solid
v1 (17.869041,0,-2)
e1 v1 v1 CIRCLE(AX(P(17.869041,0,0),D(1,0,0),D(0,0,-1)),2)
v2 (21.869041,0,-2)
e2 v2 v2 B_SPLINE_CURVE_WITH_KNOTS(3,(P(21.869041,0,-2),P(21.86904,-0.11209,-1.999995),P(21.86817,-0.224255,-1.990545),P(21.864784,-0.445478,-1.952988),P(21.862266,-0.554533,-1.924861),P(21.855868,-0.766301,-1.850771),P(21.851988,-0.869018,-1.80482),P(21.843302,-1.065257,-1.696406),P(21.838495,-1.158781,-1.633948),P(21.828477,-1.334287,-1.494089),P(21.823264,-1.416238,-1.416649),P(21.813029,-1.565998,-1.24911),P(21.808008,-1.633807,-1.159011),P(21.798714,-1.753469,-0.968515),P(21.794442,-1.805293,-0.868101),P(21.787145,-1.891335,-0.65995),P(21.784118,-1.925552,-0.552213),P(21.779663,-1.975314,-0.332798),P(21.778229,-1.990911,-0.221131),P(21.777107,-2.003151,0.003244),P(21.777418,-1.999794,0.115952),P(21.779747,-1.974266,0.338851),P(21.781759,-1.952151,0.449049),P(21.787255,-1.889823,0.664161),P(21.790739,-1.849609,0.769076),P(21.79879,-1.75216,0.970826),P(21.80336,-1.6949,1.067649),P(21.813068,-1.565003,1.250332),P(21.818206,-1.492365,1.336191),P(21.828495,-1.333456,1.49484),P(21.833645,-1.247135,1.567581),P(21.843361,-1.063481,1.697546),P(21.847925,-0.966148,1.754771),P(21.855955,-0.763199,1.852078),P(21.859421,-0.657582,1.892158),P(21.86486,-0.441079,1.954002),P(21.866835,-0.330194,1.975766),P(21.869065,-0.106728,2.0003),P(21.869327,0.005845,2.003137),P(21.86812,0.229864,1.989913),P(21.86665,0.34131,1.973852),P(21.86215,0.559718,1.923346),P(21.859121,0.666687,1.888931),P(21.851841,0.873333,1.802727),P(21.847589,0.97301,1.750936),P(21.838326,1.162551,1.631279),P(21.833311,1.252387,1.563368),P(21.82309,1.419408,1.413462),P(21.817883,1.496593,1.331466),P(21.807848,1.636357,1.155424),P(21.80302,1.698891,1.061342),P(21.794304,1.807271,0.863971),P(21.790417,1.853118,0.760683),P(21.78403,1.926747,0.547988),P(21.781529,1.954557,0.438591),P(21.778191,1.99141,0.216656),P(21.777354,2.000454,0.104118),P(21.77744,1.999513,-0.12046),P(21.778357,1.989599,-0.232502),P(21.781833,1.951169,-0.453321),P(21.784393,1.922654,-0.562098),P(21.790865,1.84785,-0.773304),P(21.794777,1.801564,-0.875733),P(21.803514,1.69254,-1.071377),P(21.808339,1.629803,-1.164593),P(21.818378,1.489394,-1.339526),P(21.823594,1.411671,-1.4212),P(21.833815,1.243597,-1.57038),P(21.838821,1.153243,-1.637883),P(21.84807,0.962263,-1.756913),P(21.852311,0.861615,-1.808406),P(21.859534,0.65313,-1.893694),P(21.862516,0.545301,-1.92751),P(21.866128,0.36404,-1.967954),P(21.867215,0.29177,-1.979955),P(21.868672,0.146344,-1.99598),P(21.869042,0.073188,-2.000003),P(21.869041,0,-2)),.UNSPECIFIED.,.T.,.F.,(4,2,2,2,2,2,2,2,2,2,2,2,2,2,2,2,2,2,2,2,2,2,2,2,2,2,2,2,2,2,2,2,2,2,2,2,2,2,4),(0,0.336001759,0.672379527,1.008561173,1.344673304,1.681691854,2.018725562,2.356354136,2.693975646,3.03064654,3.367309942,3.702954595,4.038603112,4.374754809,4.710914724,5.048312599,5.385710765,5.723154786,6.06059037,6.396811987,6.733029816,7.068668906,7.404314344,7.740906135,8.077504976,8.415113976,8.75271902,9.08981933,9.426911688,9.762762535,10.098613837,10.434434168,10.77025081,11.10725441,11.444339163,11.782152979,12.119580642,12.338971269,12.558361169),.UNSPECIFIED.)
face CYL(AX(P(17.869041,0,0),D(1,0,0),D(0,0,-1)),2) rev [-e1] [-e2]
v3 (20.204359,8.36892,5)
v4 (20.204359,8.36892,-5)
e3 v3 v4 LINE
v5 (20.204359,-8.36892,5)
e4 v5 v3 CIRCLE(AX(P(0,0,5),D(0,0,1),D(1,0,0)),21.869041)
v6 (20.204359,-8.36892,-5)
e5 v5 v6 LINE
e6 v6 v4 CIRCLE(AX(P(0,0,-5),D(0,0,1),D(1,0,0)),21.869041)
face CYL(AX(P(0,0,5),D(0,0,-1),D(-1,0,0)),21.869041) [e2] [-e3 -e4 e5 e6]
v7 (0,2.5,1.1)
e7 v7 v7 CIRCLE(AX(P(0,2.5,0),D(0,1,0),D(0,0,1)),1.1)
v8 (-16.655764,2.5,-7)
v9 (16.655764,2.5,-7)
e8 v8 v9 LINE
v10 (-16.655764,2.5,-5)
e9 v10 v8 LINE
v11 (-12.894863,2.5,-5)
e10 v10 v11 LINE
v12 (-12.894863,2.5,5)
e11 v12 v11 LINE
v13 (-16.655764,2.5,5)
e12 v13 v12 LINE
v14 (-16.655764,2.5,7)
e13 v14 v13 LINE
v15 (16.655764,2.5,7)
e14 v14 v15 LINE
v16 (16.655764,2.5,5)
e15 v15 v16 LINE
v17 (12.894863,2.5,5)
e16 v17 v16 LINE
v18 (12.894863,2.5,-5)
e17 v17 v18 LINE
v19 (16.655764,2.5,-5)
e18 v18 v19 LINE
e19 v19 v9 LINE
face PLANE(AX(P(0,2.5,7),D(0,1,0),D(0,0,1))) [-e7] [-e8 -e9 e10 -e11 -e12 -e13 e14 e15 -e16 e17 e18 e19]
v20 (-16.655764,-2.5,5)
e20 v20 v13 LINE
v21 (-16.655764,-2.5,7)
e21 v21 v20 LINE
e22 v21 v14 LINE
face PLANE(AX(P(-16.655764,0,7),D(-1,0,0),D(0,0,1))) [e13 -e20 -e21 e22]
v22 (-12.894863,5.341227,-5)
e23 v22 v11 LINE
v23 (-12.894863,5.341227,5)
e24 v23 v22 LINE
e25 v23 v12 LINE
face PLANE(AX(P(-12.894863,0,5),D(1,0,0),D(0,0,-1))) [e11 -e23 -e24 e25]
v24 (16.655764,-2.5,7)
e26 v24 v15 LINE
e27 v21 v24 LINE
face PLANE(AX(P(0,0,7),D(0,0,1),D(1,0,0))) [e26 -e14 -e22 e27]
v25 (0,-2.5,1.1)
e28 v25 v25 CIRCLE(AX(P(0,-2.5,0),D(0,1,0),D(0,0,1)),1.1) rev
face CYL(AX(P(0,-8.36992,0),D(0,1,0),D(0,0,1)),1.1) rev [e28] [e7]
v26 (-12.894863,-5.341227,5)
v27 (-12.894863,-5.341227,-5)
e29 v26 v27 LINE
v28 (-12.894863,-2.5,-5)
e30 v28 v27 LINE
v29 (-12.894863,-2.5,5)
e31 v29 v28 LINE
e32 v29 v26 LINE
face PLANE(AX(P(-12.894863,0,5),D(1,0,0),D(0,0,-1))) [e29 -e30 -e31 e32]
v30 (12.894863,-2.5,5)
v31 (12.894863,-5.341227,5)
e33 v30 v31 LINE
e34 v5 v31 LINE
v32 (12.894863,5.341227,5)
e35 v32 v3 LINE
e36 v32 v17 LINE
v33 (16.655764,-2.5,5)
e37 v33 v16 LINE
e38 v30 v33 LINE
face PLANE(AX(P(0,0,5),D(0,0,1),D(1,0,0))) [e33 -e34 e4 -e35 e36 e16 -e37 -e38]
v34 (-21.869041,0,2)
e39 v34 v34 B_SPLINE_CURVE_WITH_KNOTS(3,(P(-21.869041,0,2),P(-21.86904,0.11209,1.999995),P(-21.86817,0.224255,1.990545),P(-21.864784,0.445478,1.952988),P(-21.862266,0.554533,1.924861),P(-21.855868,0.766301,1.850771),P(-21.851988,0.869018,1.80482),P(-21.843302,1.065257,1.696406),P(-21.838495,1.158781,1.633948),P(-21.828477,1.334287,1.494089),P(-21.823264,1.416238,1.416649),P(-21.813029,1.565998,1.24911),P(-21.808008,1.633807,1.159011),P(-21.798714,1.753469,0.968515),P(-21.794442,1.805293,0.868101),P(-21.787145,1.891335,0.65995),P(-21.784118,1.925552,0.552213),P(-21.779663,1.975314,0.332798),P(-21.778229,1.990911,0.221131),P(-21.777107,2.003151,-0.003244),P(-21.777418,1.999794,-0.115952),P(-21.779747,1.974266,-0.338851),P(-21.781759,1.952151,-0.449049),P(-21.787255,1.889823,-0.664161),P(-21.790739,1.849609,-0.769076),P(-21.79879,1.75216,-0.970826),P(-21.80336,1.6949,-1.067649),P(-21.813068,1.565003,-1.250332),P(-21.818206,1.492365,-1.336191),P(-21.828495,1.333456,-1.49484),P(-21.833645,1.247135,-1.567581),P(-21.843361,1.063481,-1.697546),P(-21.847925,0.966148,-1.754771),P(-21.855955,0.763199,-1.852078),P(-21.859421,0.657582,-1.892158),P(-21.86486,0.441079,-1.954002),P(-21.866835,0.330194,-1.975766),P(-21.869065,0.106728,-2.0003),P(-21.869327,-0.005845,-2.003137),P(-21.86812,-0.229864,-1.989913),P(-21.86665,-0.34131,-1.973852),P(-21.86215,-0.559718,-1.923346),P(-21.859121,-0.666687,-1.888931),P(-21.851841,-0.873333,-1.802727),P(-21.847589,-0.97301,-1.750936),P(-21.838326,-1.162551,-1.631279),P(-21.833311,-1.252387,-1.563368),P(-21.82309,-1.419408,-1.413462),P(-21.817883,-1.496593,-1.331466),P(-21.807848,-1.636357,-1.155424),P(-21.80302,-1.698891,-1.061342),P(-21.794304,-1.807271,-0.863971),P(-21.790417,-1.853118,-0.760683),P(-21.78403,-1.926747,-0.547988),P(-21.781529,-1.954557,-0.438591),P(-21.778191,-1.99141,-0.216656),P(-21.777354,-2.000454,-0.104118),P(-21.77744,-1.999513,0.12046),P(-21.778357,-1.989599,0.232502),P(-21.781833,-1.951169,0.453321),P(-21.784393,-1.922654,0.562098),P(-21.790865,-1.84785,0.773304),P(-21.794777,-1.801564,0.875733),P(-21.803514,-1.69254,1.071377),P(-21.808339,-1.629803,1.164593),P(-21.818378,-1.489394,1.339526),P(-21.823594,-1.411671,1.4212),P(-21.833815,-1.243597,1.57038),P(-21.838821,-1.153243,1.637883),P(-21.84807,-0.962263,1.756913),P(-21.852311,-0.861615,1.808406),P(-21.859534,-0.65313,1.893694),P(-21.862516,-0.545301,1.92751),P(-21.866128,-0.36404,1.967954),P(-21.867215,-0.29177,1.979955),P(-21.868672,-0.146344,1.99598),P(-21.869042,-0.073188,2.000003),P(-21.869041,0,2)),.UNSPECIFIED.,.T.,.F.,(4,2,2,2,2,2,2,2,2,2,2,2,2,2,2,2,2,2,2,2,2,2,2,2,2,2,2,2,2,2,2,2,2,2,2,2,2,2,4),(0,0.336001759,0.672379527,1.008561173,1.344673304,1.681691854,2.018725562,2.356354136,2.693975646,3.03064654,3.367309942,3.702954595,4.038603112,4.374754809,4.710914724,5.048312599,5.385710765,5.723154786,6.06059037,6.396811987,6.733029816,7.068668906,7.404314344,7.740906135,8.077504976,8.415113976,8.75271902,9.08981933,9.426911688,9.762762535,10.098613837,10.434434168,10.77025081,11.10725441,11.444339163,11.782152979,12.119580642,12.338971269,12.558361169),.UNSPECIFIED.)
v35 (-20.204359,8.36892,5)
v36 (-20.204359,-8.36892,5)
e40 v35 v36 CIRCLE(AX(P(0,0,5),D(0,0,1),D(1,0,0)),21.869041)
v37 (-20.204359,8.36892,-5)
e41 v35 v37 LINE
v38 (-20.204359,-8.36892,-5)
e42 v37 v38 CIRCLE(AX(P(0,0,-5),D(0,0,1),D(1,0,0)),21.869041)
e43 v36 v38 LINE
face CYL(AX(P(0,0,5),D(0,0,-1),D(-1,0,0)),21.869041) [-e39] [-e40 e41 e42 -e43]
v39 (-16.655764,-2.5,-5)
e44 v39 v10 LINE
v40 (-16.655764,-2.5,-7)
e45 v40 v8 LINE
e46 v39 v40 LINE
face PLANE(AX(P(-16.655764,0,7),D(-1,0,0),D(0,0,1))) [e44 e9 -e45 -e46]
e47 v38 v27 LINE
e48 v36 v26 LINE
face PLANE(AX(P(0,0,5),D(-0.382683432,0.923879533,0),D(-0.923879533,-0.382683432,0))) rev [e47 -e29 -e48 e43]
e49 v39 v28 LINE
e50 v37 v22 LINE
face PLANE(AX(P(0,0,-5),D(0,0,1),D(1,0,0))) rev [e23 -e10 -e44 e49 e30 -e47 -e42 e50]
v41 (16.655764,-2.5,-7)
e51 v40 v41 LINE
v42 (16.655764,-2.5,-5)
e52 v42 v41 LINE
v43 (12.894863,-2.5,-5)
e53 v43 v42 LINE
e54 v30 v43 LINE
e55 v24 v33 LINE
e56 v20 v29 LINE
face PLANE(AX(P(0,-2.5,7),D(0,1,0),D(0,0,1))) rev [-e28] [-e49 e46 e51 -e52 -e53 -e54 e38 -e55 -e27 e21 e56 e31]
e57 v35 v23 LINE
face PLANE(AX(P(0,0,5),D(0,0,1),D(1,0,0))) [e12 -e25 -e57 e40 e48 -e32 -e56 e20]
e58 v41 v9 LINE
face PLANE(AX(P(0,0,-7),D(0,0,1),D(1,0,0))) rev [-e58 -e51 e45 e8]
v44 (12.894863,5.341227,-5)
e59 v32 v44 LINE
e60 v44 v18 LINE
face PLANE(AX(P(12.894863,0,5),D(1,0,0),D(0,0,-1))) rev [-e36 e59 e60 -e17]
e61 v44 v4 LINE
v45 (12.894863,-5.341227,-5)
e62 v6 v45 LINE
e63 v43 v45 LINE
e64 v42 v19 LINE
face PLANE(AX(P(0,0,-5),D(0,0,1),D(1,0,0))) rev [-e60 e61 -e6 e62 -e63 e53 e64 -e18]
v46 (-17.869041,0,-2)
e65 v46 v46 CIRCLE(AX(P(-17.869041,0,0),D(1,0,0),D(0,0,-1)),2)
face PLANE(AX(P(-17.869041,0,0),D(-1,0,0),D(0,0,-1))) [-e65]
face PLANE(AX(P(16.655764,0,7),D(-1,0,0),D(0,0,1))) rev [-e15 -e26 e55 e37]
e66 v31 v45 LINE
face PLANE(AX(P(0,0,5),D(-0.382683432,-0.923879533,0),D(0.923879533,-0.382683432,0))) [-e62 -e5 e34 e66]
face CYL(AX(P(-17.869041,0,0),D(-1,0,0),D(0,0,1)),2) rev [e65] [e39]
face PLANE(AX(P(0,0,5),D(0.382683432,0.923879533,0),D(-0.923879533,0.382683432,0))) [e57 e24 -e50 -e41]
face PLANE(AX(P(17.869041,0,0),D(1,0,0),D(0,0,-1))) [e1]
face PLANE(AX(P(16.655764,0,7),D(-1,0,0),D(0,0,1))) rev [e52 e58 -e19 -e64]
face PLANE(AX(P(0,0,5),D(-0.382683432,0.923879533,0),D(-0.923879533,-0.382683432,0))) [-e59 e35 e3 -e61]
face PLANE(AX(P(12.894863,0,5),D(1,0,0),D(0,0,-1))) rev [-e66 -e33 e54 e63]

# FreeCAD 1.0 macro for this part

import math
import FreeCAD as App
import Part
import Sketcher
from FreeCAD import Vector
Q = App.Units.Quantity

doc = App.newDocument("Part")
body = doc.addObject("PartDesign::Body", "Body")

# Sketch on XY plane
sketch1 = body.newObject("Sketcher::SketchObject", "Sketch")
sketch1.AttachmentSupport = (doc.getObject("XY_Plane"), [""])
sketch1.MapMode = "FlatFace"
sketch1.addGeometry([
    Part.LineSegment(Vector(12.9, 5.3, 0), Vector(12.9, 2.5, 0)),  # 0
    Part.LineSegment(Vector(12.9, 2.5, 0), Vector(16.7, 2.5, 0)),  # 1
    Part.LineSegment(Vector(16.7, 2.5, 0), Vector(16.7, -2.5, 0)),  # 2
    Part.LineSegment(Vector(16.7, -2.5, 0), Vector(12.9, -2.5, 0)),  # 3
    Part.LineSegment(Vector(12.9, -2.5, 0), Vector(12.9, -5.3, 0)),  # 4
    Part.LineSegment(Vector(12.9, -5.3, 0), Vector(20.2, -8.4, 0)),  # 5
    Part.ArcOfCircle(Part.Circle(Vector(0, 0, 0), Vector(0, 0, 1), 21.9), math.radians(-23), math.radians(23)),  # 6
    Part.LineSegment(Vector(20.2, 8.4, 0), Vector(12.9, 5.3, 0)),  # 7
], False)
sketch1.addConstraint([
    Sketcher.Constraint("Coincident", 0, 2, 1, 1),
    Sketcher.Constraint("Coincident", 1, 2, 2, 1),
    Sketcher.Constraint("Coincident", 2, 2, 3, 1),
    Sketcher.Constraint("Coincident", 3, 2, 4, 1),
    Sketcher.Constraint("Coincident", 4, 2, 5, 1),
    Sketcher.Constraint("Coincident", 5, 2, 6, 1),
    Sketcher.Constraint("Coincident", 6, 2, 7, 1),
    Sketcher.Constraint("Coincident", 7, 2, 0, 1),
    Sketcher.Constraint("Vertical", 0),
    Sketcher.Constraint("Horizontal", 1),
    Sketcher.Constraint("Vertical", 2),
    Sketcher.Constraint("Horizontal", 3),
    Sketcher.Constraint("Vertical", 4),
    Sketcher.Constraint("Coincident", 6, 3, -1, 1),
    Sketcher.Constraint("Symmetric", 0, 2, 3, 2, -1),
    Sketcher.Constraint("Vertical", 5, 2, 6, 2),
    Sketcher.Constraint("Equal", 0, 4),
    Sketcher.Constraint("DistanceY", 2, 2, 2, 1, 5.0),
    Sketcher.Constraint("Angle", 5, Q("-22.5 deg")),
    Sketcher.Constraint("Radius", 6, 21.869041),
    Sketcher.Constraint("DistanceX", 1, 1, 1, 2, 3.760901),
    Sketcher.Constraint("DistanceY", 0, 2, 0, 1, 2.841227),
    Sketcher.Constraint("DistanceX", -1, 1, 5, 2, 20.204359),
])
pad1 = body.newObject("PartDesign::Pad", "Pad")
pad1.Profile = sketch1
pad1.Length = 10
pad1.Midplane = True
body2 = doc.addObject("PartDesign::Body", "Body001")

# Sketch on XY plane
sketch2 = body2.newObject("Sketcher::SketchObject", "Sketch001")
sketch2.AttachmentSupport = (doc.getObject("XY_Plane001"), [""])
sketch2.MapMode = "FlatFace"
sketch2.addGeometry([
    Part.LineSegment(Vector(-12.9, 5.3, 0), Vector(-20.2, 8.4, 0)),  # 0
    Part.ArcOfCircle(Part.Circle(Vector(0, 0, 0), Vector(0, 0, 1), 21.9), math.radians(157), math.radians(203)),  # 1
    Part.LineSegment(Vector(-20.2, -8.4, 0), Vector(-12.9, -5.3, 0)),  # 2
    Part.LineSegment(Vector(-12.9, -5.3, 0), Vector(-12.9, -2.5, 0)),  # 3
    Part.LineSegment(Vector(-12.9, -2.5, 0), Vector(-16.7, -2.5, 0)),  # 4
    Part.LineSegment(Vector(-16.7, -2.5, 0), Vector(-16.7, 2.5, 0)),  # 5
    Part.LineSegment(Vector(-16.7, 2.5, 0), Vector(-12.9, 2.5, 0)),  # 6
    Part.LineSegment(Vector(-12.9, 2.5, 0), Vector(-12.9, 5.3, 0)),  # 7
], False)
sketch2.addConstraint([
    Sketcher.Constraint("Coincident", 0, 2, 1, 1),
    Sketcher.Constraint("Coincident", 1, 2, 2, 1),
    Sketcher.Constraint("Coincident", 2, 2, 3, 1),
    Sketcher.Constraint("Coincident", 3, 2, 4, 1),
    Sketcher.Constraint("Coincident", 4, 2, 5, 1),
    Sketcher.Constraint("Coincident", 5, 2, 6, 1),
    Sketcher.Constraint("Coincident", 6, 2, 7, 1),
    Sketcher.Constraint("Coincident", 7, 2, 0, 1),
    Sketcher.Constraint("Vertical", 3),
    Sketcher.Constraint("Horizontal", 4),
    Sketcher.Constraint("Vertical", 5),
    Sketcher.Constraint("Horizontal", 6),
    Sketcher.Constraint("Vertical", 7),
    Sketcher.Constraint("Coincident", 1, 3, -1, 1),
    Sketcher.Constraint("Symmetric", 3, 2, 6, 2, -1),
    Sketcher.Constraint("Vertical", 0, 2, 1, 2),
    Sketcher.Constraint("Equal", 3, 7),
    Sketcher.Constraint("DistanceY", 5, 1, 5, 2, 5.0),
    Sketcher.Constraint("Angle", 0, Q("157.5 deg")),
    Sketcher.Constraint("Radius", 1, 21.869041),
    Sketcher.Constraint("DistanceX", 4, 2, 4, 1, 3.760901),
    Sketcher.Constraint("DistanceY", 3, 1, 3, 2, 2.841227),
    Sketcher.Constraint("DistanceX", 0, 2, -1, 1, 20.204359),
])
pad2 = body2.newObject("PartDesign::Pad", "Pad001")
pad2.Profile = sketch2
pad2.Length = 10
pad2.Midplane = True
body.AllowCompound = True
doc.recompute()

boolean = body.newObject("PartDesign::Boolean", "Boolean")
boolean.Type = "Fuse"
boolean.addObjects([body2])

# Sketch on XY plane
sketch3 = body.newObject("Sketcher::SketchObject", "Sketch002")
sketch3.AttachmentSupport = (doc.getObject("XY_Plane"), [""])
sketch3.MapMode = "FlatFace"
sketch3.addGeometry([
    Part.LineSegment(Vector(17, -2, 0), Vector(17, 2, 0)),
    Part.LineSegment(Vector(17, 2, 0), Vector(-17, 2, 0)),
    Part.LineSegment(Vector(-17, 2, 0), Vector(-17, -2, 0)),
    Part.LineSegment(Vector(-17, -2, 0), Vector(17, -2, 0)),
], False)
sketch3.addConstraint([
    Sketcher.Constraint("Coincident", 0, 2, 1, 1),
    Sketcher.Constraint("Coincident", 1, 2, 2, 1),
    Sketcher.Constraint("Coincident", 2, 2, 3, 1),
    Sketcher.Constraint("Coincident", 3, 2, 0, 1),
    Sketcher.Constraint("Vertical", 0),
    Sketcher.Constraint("Horizontal", 1),
    Sketcher.Constraint("Vertical", 2),
    Sketcher.Constraint("Horizontal", 3),
    Sketcher.Constraint("Symmetric", 0, 2, 2, 2, -1, 1),
    Sketcher.Constraint("DistanceY", 0, 1, 0, 2, 5.0),
    Sketcher.Constraint("DistanceX", 1, 2, 1, 1, 33.311527),
])
pad3 = body.newObject("PartDesign::Pad", "Pad002")
pad3.Profile = sketch3
pad3.Length = 14
pad3.Midplane = True

# Sketch on XZ plane
sketch4 = body.newObject("Sketcher::SketchObject", "Sketch003")
sketch4.AttachmentSupport = (doc.getObject("XZ_Plane"), [""])
sketch4.MapMode = "FlatFace"
sketch4.AttachmentOffset = App.Placement(Vector(0, 0, -2.5), App.Rotation())
sketch4.addGeometry(Part.Circle(Vector(0, 0, 0), Vector(0, 0, 1), 1.1), False)
sketch4.addConstraint([
    Sketcher.Constraint("Coincident", 0, 3, -1, 1),
    Sketcher.Constraint("Diameter", 0, 2.2),
])
pocket1 = body.newObject("PartDesign::Pocket", "Pocket")
pocket1.Profile = sketch4
pocket1.Type = "UpToFirst"
pocket1.Reversed = True

# Sketch on YZ plane
sketch5 = body.newObject("Sketcher::SketchObject", "Sketch004")
sketch5.AttachmentSupport = (doc.getObject("YZ_Plane"), [""])
sketch5.MapMode = "FlatFace"
sketch5.AttachmentOffset = App.Placement(Vector(0, 0, 21.869041), App.Rotation())
sketch5.addGeometry(Part.Circle(Vector(0, 0, 0), Vector(0, 0, 1), 2), False)
sketch5.addConstraint([
    Sketcher.Constraint("Coincident", 0, 3, -1, 1),
    Sketcher.Constraint("Diameter", 0, 4.0),
])
pocket2 = body.newObject("PartDesign::Pocket", "Pocket001")
pocket2.Profile = sketch5
pocket2.Length = 4
doc.recompute()

mirrored = body.newObject("PartDesign::Mirrored", "Mirrored")
mirrored.Originals = [pocket2]
mirrored.MirrorPlane = (doc.getObject("YZ_Plane"), [""])
body.Tip = mirrored

doc.recompute()
